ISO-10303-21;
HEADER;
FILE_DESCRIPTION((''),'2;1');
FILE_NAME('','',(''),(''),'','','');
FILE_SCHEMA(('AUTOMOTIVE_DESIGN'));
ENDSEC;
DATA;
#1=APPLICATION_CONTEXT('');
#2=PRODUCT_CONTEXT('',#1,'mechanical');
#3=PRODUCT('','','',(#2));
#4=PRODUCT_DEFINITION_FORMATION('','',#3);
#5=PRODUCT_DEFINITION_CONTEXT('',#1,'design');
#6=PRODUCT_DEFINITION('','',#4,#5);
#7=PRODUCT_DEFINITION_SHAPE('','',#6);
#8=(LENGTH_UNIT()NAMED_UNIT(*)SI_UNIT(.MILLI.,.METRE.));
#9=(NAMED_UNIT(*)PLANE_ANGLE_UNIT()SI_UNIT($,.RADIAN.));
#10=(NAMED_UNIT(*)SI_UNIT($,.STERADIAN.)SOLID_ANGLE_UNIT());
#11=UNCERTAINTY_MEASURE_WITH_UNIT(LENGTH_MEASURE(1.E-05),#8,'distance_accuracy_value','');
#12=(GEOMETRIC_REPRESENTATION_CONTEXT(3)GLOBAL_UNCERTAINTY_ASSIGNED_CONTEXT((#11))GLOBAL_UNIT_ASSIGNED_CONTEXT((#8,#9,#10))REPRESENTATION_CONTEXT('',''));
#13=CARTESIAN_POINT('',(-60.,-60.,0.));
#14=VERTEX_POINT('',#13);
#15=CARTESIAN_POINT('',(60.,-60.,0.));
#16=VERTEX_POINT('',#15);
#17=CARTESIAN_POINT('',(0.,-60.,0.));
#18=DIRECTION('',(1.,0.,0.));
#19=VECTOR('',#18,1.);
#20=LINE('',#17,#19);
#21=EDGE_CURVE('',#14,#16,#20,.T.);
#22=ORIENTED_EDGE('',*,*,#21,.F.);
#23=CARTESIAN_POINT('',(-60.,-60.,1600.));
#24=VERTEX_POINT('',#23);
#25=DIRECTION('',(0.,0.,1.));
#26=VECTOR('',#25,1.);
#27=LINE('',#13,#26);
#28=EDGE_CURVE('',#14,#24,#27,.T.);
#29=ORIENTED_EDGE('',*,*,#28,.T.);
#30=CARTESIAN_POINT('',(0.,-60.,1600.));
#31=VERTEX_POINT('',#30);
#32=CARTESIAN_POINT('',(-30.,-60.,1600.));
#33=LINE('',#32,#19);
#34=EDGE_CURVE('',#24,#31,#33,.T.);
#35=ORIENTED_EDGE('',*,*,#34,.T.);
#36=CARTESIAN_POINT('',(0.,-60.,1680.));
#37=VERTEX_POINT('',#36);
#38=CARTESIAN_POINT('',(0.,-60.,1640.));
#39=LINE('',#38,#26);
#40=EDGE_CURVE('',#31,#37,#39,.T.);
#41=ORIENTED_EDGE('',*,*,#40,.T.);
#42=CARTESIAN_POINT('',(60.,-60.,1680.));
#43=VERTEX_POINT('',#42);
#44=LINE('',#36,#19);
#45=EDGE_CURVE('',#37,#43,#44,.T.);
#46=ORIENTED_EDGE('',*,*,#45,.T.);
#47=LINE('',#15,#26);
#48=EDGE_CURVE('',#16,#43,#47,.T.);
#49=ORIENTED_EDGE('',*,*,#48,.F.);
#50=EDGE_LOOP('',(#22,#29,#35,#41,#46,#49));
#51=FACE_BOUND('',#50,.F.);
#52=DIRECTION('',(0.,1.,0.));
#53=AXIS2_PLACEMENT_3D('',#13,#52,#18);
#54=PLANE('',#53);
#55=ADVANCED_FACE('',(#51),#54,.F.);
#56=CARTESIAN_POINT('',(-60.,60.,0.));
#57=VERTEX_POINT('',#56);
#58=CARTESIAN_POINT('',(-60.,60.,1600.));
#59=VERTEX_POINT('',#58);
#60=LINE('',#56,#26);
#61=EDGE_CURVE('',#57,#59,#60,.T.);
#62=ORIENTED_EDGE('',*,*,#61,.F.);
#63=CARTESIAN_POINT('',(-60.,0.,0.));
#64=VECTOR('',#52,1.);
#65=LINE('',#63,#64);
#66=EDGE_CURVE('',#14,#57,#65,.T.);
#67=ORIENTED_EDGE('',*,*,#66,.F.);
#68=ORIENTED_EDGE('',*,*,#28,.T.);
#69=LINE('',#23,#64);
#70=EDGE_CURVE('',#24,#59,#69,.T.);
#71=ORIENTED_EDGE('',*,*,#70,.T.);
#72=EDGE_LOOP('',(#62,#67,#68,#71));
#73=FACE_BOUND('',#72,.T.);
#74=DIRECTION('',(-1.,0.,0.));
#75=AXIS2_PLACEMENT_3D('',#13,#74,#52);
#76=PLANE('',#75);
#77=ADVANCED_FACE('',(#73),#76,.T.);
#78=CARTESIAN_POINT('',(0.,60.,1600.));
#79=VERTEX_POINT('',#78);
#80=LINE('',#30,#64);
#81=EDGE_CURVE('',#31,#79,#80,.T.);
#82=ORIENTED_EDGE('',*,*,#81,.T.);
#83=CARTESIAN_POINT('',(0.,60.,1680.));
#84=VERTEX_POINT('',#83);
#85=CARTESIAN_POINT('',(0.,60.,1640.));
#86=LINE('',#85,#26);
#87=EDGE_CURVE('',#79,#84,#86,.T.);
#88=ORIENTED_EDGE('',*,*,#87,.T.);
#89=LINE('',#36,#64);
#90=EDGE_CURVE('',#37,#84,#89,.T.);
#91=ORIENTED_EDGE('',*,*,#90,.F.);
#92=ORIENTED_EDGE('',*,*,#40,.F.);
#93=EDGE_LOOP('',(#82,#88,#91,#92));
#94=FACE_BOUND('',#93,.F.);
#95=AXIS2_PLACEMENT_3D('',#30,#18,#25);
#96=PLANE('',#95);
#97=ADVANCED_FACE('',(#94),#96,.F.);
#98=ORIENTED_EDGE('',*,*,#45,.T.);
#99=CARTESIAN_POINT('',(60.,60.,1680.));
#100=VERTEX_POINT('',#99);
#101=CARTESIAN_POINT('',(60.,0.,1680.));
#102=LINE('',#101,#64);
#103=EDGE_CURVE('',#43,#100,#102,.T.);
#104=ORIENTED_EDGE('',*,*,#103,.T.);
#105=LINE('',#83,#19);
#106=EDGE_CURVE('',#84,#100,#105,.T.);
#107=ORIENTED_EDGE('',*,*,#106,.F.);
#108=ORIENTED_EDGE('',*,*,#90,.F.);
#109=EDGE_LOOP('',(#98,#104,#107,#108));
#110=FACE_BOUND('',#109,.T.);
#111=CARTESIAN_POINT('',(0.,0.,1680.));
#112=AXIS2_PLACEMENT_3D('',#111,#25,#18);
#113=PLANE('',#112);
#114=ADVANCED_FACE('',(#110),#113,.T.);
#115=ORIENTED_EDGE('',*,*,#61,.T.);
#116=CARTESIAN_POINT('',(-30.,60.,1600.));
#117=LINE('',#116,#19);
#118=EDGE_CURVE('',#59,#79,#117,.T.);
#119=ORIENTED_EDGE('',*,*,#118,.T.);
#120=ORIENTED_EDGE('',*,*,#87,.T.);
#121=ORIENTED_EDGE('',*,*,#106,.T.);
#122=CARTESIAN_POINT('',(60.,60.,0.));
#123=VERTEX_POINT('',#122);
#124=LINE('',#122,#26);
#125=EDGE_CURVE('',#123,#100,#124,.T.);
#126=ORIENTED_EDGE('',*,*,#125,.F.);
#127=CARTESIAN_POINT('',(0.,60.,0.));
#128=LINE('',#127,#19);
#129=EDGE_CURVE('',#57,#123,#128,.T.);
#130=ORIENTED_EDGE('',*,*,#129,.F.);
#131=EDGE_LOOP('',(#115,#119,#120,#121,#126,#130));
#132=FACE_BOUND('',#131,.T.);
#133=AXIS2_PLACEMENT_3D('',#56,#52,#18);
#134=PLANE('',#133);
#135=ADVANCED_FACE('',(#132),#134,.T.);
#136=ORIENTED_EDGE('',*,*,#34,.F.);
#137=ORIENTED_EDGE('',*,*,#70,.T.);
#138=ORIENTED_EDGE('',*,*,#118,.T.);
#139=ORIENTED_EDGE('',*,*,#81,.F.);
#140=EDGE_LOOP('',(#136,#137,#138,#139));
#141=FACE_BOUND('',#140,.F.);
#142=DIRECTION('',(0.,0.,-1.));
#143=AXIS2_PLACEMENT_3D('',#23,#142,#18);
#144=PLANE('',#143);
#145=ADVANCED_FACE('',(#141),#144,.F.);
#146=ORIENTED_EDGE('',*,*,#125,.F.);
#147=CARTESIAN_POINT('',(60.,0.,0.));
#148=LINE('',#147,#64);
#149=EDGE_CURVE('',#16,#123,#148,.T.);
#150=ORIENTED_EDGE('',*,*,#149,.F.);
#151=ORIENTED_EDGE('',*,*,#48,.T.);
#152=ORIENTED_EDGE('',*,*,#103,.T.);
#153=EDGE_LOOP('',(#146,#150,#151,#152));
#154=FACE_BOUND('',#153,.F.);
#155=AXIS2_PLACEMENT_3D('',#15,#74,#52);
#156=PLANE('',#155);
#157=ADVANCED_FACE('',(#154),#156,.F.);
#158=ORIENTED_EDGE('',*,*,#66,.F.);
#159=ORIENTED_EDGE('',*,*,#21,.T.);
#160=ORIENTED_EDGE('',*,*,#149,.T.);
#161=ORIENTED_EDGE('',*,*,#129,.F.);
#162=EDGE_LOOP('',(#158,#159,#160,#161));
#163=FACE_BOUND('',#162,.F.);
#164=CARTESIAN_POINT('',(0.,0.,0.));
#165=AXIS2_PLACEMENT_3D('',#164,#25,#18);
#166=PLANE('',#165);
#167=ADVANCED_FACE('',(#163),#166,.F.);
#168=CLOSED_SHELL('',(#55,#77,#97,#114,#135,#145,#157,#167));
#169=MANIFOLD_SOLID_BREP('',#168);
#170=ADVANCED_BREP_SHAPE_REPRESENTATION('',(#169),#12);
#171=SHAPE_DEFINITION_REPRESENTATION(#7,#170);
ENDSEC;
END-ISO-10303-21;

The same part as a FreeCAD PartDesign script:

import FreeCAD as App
import Part
import Sketcher

V = App.Vector

doc = App.newDocument("Part")
body = doc.addObject("PartDesign::Body", "Body")

# Sketch on XY plane
sketch1 = body.newObject("Sketcher::SketchObject", "Sketch")
sketch1.AttachmentSupport = (doc.getObject("XY_Plane"), [""])
sketch1.MapMode = "FlatFace"
sketch1.addGeometry([
    Part.LineSegment(V(-60, 60, 0), V(-60, -60, 0)),
    Part.LineSegment(V(-60, -60, 0), V(60, -60, 0)),
    Part.LineSegment(V(60, -60, 0), V(60, 60, 0)),
    Part.LineSegment(V(60, 60, 0), V(-60, 60, 0)),
], False)
sketch1.addConstraint([
    Sketcher.Constraint("Coincident", 0, 2, 1, 1),
    Sketcher.Constraint("Coincident", 1, 2, 2, 1),
    Sketcher.Constraint("Coincident", 2, 2, 3, 1),
    Sketcher.Constraint("Coincident", 3, 2, 0, 1),
    Sketcher.Constraint("Vertical", 0),
    Sketcher.Constraint("Horizontal", 1),
    Sketcher.Constraint("Vertical", 2),
    Sketcher.Constraint("Horizontal", 3),
    Sketcher.Constraint("Symmetric", 0, 2, 2, 2, -1, 1),
    Sketcher.Constraint("Equal", 3, 0),
    Sketcher.Constraint("DistanceX", 1, 1, 1, 2, 120.0),
])
pad1 = body.newObject("PartDesign::Pad", "Pad")
pad1.Profile = sketch1
pad1.Length = 1680

# Sketch on XZ plane
sketch2 = body.newObject("Sketcher::SketchObject", "Sketch001")
sketch2.AttachmentSupport = (doc.getObject("XZ_Plane"), [""])
sketch2.MapMode = "FlatFace"
sketch2.AttachmentOffset = App.Placement(V(0, 0, 60), App.Rotation())
sketch2.addGeometry([
    Part.LineSegment(V(-60, 1680, 0), V(-60, 1600, 0)),
    Part.LineSegment(V(-60, 1600, 0), V(0, 1600, 0)),
    Part.LineSegment(V(0, 1600, 0), V(0, 1680, 0)),
    Part.LineSegment(V(0, 1680, 0), V(-60, 1680, 0)),
], False)
sketch2.addConstraint([
    Sketcher.Constraint("Coincident", 0, 2, 1, 1),
    Sketcher.Constraint("Coincident", 1, 2, 2, 1),
    Sketcher.Constraint("Coincident", 2, 2, 3, 1),
    Sketcher.Constraint("Coincident", 3, 2, 0, 1),
    Sketcher.Constraint("Vertical", 0),
    Sketcher.Constraint("Horizontal", 1),
    Sketcher.Constraint("Vertical", 2),
    Sketcher.Constraint("Horizontal", 3),
    Sketcher.Constraint("PointOnObject", 1, 2, -2),
    Sketcher.Constraint("DistanceX", 1, 1, 1, 2, 60.0),
    Sketcher.Constraint("DistanceY", 0, 2, 0, 1, 80.0),
    Sketcher.Constraint("DistanceY", -1, 1, 0, 2, 1600.0),
])
pocket1 = body.newObject("PartDesign::Pocket", "Pocket")
pocket1.Profile = sketch2
pocket1.Type = "ThroughAll"

doc.recompute()
